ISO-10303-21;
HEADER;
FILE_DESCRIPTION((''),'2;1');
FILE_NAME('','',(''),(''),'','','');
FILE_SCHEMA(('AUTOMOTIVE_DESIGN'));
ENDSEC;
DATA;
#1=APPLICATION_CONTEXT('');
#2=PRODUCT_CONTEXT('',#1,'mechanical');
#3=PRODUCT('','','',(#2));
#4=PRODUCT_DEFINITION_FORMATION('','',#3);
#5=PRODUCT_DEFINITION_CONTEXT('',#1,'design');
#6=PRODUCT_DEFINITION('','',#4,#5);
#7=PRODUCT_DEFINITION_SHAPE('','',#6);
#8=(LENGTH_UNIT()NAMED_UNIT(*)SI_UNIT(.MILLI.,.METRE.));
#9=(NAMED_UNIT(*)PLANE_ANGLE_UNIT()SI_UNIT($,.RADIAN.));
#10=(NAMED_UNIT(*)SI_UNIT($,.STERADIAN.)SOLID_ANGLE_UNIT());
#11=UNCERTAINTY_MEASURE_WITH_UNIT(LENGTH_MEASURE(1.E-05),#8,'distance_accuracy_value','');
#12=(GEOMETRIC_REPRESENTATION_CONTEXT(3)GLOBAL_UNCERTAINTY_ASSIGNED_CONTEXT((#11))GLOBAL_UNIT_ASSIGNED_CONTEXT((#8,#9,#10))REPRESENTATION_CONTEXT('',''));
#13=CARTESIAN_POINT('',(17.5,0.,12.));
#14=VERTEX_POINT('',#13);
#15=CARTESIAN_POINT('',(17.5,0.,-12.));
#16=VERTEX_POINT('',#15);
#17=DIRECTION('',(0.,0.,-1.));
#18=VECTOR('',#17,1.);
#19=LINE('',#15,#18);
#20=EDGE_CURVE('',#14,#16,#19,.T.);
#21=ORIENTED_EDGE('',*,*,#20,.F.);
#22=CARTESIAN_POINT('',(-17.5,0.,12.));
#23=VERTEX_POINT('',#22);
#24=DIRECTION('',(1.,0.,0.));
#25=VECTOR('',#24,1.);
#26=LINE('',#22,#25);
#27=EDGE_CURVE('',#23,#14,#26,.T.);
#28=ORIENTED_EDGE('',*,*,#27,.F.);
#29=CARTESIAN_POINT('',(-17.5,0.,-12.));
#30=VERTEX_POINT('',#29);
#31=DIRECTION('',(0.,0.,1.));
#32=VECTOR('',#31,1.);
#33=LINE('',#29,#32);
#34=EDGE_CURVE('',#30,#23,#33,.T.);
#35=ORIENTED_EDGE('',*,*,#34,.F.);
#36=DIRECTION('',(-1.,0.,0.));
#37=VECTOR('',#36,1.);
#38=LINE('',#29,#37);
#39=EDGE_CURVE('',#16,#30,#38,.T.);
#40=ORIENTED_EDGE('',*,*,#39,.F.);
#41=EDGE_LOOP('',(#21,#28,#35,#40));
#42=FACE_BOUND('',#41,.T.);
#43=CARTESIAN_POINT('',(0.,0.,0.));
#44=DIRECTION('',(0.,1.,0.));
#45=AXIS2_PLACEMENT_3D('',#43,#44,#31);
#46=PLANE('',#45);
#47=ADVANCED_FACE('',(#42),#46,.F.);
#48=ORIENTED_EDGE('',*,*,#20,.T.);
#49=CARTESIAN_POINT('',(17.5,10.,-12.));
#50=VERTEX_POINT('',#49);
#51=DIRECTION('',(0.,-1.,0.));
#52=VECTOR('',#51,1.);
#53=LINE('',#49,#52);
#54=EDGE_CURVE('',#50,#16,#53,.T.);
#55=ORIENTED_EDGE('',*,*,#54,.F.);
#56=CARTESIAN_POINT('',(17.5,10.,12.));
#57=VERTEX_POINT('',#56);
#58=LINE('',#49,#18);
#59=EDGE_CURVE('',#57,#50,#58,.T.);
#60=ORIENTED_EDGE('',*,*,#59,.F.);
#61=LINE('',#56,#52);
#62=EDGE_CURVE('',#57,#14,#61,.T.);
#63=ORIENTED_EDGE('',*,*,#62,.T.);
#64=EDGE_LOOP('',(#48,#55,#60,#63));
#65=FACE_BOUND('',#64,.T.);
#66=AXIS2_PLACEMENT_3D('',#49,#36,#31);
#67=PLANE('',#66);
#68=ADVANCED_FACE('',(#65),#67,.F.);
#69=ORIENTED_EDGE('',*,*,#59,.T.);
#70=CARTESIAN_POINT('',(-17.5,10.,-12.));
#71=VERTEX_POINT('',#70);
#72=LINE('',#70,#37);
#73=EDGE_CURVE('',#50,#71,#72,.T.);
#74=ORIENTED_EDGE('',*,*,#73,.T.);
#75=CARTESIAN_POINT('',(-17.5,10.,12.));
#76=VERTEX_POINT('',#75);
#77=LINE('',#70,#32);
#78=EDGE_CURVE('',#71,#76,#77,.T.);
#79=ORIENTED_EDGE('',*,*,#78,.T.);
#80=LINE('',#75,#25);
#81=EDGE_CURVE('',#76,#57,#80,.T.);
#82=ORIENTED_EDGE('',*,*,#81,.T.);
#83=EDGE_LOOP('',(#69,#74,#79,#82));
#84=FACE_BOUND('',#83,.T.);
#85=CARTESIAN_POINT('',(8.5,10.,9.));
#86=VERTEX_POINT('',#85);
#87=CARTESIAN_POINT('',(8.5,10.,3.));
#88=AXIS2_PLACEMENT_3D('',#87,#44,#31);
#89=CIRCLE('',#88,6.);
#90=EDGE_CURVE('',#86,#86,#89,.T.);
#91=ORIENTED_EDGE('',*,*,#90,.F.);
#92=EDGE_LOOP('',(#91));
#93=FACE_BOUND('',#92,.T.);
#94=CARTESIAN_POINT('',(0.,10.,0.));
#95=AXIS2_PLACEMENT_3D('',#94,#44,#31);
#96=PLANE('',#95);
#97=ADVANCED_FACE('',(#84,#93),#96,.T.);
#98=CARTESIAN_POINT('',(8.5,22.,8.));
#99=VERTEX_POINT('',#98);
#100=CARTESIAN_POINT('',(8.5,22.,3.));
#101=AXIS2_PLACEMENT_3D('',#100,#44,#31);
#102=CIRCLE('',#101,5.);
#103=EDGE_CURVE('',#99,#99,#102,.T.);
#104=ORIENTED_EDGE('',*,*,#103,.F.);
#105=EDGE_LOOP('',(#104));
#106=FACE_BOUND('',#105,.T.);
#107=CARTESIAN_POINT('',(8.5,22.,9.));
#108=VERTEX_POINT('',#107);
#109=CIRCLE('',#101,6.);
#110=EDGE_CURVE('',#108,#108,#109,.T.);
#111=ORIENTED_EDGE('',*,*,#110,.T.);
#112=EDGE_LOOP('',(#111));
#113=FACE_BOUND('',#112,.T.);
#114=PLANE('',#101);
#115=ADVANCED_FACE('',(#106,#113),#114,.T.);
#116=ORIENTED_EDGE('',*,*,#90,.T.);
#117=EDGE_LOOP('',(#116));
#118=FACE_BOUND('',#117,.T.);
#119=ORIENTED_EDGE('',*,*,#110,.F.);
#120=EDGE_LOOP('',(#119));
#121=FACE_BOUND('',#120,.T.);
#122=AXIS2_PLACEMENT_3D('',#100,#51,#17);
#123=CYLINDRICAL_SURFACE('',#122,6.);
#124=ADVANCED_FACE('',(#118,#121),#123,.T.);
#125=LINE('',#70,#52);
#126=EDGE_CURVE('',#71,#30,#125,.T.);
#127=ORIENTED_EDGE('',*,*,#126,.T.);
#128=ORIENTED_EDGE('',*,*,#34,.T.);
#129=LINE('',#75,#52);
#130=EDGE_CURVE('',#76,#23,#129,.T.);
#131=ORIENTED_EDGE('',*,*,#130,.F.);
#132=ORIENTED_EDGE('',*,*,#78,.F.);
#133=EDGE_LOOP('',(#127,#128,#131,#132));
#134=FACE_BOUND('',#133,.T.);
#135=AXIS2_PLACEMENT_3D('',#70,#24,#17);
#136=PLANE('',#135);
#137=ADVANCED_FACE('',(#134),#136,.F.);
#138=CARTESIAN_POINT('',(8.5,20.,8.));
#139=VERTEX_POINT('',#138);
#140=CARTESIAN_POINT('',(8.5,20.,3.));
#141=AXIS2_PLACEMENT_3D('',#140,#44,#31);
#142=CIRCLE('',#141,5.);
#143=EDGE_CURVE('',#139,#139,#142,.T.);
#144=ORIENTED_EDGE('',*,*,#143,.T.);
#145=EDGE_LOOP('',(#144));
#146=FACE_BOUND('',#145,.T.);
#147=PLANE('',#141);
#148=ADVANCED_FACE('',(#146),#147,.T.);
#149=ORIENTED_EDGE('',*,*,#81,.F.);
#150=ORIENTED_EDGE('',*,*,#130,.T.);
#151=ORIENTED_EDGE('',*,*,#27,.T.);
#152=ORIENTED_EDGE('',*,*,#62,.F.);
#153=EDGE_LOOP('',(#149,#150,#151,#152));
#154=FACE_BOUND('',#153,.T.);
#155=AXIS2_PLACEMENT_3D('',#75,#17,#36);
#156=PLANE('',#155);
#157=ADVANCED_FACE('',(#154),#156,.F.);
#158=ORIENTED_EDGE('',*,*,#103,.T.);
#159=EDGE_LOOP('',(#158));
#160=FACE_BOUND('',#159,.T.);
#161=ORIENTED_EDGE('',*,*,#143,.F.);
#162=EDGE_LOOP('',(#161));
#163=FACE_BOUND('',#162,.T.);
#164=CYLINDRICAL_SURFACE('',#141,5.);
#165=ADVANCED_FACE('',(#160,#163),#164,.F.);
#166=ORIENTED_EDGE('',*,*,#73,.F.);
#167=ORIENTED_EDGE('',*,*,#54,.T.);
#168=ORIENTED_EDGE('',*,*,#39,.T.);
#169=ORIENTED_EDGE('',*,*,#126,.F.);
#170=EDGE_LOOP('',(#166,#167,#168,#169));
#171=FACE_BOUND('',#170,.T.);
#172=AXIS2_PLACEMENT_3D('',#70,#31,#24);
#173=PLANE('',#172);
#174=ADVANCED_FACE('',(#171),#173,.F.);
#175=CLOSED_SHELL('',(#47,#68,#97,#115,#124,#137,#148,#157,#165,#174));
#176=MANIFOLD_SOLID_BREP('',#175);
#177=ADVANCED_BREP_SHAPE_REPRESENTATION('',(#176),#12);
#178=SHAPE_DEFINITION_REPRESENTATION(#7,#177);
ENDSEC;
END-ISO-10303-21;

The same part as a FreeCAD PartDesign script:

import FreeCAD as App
import Part
import Sketcher
from FreeCAD import Vector

doc = App.newDocument("Part")
body = doc.addObject("PartDesign::Body", "Body")

sketch1 = body.newObject("Sketcher::SketchObject", "Sketch")
sketch1.AttachmentSupport = (doc.getObject("XZ_Plane"), [""])
sketch1.MapMode = "FlatFace"
sketch1.addGeometry([
    Part.LineSegment(Vector(-17.5, -12, 0), Vector(-17.5, 12, 0)),
    Part.LineSegment(Vector(-17.5, 12, 0), Vector(17.5, 12, 0)),
    Part.LineSegment(Vector(17.5, 12, 0), Vector(17.5, -12, 0)),
    Part.LineSegment(Vector(17.5, -12, 0), Vector(-17.5, -12, 0)),
], False)
sketch1.addConstraint([
    Sketcher.Constraint("Coincident", 0, 2, 1, 1),
    Sketcher.Constraint("Coincident", 1, 2, 2, 1),
    Sketcher.Constraint("Coincident", 2, 2, 3, 1),
    Sketcher.Constraint("Coincident", 3, 2, 0, 1),
    Sketcher.Constraint("Vertical", 0),
    Sketcher.Constraint("Horizontal", 1),
    Sketcher.Constraint("Vertical", 2),
    Sketcher.Constraint("Horizontal", 3),
    Sketcher.Constraint("Symmetric", 0, 2, 2, 2, -1, 1),
    Sketcher.Constraint("DistanceX", 1, 1, 1, 2, 35.0),
    Sketcher.Constraint("DistanceY", 0, 1, 0, 2, 24.0),
])
pad1 = body.newObject("PartDesign::Pad", "Pad")
pad1.Profile = sketch1
pad1.Length = 10
pad1.Reversed = True

sketch2 = body.newObject("Sketcher::SketchObject", "Sketch001")
sketch2.AttachmentSupport = (doc.getObject("XZ_Plane"), [""])
sketch2.MapMode = "FlatFace"
sketch2.AttachmentOffset = App.Placement(Vector(0, 0, -10), App.Rotation())
sketch2.addGeometry(Part.Circle(Vector(8.5, 3, 0), Vector(0, 0, 1), 6), False)
sketch2.addConstraint([
    Sketcher.Constraint("Diameter", 0, 12.0),
    Sketcher.Constraint("DistanceY", -1, 1, 0, 3, 3.0),
    Sketcher.Constraint("DistanceX", -1, 1, 0, 3, 8.5),
])
pad2 = body.newObject("PartDesign::Pad", "Pad001")
pad2.Profile = sketch2
pad2.Length = 12
pad2.Reversed = True

sketch3 = body.newObject("Sketcher::SketchObject", "Sketch002")
sketch3.AttachmentSupport = (doc.getObject("XZ_Plane"), [""])
sketch3.MapMode = "FlatFace"
sketch3.AttachmentOffset = App.Placement(Vector(0, 0, -22), App.Rotation())
sketch3.addGeometry(Part.Circle(Vector(8.5, 3, 0), Vector(0, 0, 1), 5), False)
sketch3.addConstraint([
    Sketcher.Constraint("Diameter", 0, 10.0),
    Sketcher.Constraint("DistanceY", -1, 1, 0, 3, 3.0),
    Sketcher.Constraint("DistanceX", -1, 1, 0, 3, 8.5),
])
pocket1 = body.newObject("PartDesign::Pocket", "Pocket")
pocket1.Profile = sketch3
pocket1.Length = 2
pocket1.Reversed = True

doc.recompute()
